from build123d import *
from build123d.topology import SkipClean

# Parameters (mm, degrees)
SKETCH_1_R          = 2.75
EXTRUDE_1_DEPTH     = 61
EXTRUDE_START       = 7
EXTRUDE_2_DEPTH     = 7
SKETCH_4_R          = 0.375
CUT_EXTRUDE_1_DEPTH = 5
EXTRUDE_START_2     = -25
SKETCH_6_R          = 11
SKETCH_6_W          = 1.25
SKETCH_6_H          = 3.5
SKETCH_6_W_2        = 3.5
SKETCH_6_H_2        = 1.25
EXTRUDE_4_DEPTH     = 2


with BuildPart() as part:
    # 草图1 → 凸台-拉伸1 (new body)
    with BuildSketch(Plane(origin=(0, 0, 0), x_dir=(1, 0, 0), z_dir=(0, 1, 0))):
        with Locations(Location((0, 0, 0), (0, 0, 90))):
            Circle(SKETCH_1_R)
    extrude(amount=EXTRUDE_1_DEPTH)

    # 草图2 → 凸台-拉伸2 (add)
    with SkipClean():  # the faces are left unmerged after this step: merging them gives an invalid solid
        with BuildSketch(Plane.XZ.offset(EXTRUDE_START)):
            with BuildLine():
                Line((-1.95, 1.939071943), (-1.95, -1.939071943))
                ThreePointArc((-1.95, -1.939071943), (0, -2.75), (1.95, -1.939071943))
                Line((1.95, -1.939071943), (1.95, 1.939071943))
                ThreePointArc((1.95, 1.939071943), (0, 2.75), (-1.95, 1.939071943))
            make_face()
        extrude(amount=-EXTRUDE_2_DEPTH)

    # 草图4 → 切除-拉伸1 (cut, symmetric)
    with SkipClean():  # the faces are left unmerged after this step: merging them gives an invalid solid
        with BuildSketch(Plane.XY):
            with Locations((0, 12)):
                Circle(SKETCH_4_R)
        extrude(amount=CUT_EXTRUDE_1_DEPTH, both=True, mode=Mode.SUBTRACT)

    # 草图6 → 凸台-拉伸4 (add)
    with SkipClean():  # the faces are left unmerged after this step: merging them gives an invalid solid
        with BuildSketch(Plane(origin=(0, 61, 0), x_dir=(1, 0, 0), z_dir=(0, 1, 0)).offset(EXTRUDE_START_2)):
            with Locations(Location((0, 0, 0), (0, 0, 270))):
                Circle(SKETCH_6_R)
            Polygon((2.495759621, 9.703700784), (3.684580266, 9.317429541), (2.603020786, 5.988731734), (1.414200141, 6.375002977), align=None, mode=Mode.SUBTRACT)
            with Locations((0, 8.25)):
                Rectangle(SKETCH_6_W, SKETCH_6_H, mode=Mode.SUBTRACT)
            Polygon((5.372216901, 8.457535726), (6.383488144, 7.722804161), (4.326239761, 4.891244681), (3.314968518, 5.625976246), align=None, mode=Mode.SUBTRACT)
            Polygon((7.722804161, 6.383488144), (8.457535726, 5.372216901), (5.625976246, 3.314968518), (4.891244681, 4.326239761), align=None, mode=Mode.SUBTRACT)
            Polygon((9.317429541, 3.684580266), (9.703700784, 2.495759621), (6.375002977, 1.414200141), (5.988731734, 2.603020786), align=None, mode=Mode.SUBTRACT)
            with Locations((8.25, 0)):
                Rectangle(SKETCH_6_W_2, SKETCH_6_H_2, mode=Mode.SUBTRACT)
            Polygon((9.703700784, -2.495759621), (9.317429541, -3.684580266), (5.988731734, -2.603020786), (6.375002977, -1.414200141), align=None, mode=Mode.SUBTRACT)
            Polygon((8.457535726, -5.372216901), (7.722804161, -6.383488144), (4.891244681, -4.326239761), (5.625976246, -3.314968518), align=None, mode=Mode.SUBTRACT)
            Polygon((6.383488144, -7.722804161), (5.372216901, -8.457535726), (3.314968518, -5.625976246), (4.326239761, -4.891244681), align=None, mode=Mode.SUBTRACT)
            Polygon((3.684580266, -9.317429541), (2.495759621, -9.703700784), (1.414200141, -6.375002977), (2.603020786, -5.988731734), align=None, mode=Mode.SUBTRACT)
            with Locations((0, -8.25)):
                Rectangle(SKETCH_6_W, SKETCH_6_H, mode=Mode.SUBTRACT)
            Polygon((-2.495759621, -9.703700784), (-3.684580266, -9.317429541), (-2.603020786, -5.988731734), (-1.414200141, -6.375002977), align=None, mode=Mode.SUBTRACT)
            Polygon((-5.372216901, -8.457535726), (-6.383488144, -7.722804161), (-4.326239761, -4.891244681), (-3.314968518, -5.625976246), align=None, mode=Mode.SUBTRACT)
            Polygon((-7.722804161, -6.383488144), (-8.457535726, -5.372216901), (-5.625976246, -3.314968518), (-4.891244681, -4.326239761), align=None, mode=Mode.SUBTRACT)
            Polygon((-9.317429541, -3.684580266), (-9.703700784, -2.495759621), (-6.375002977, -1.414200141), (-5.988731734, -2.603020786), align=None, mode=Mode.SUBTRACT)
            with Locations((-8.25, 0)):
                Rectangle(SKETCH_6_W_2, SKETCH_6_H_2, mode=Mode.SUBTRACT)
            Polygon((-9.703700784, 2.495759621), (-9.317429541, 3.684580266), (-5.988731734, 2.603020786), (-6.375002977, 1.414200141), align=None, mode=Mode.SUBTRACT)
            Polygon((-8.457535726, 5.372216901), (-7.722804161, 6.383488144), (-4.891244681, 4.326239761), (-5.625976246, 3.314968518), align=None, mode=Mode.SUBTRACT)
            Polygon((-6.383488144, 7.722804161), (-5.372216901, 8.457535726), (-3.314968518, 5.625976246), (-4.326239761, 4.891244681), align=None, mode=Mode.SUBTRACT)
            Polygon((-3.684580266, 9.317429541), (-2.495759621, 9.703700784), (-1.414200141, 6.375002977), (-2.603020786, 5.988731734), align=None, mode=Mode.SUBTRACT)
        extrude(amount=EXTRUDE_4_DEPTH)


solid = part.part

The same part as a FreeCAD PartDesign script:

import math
import FreeCAD as App
import Part
import Sketcher
Q = App.Units.Quantity

doc = App.newDocument("Part")
params = doc.addObject("Spreadsheet::Sheet", "Params")
for row, (alias, value) in enumerate([
    ("sketch1_diameter", "5.5 mm"),
    ("pad1_length", "61 mm"),
    ("sketch2_radius", "2.75 mm"),
    ("pad2_length", "7 mm"),
    ("sketch3_diameter", "0.75 mm"),
    ("pocket1_length", "10 mm"),
    ("sketch4_diameter", "22 mm"),
    ("sketch4_width", "3.5 mm"),
    ("sketch4_length", "3.5 mm"),
    ("sketch4_width2", "1.25 mm"),
    ("sketch4_length2", "1.25 mm"),
    ("pad3_length", "2 mm"),
], start=1):
    params.set(f"A{row}", alias)
    params.set(f"B{row}", "=" + value)
    params.setAlias(f"B{row}", alias)

body = doc.addObject("PartDesign::Body", "Body")

# Sketch on XZ plane
sketch1 = body.newObject("Sketcher::SketchObject", "Sketch")
sketch1.AttachmentSupport = (doc.getObject("XZ_Plane"), [""])
sketch1.MapMode = "FlatFace"
sketch1.addGeometry(Part.Circle(App.Vector(0, 0, 0), App.Vector(0, 0, 1), 2.75), False)
sketch1.addConstraint(Sketcher.Constraint("Coincident", 0, 3, -1, 1))
sketch1.addConstraint(Sketcher.Constraint("Diameter", 0, 5.5))
sketch1.setExpression("Constraints[1]", "Params.sketch1_diameter")
pad1 = body.newObject("PartDesign::Pad", "Pad")
pad1.Profile = sketch1
pad1.setExpression("Length", "Params.pad1_length")
pad1.Reversed = True

# Sketch on XZ plane
sketch2 = body.newObject("Sketcher::SketchObject", "Sketch001")
sketch2.AttachmentSupport = (doc.getObject("XZ_Plane"), [""])
sketch2.MapMode = "FlatFace"
sketch2.AttachmentOffset = App.Placement(App.Vector(0, 0, 7), App.Rotation())
sketch2.addGeometry(Part.LineSegment(App.Vector(-1.95, 1.939072, 0), App.Vector(-1.95, -1.939072, 0)), False)
sketch2.addGeometry(Part.ArcOfCircle(Part.Circle(App.Vector(0, 0, 0), App.Vector(0, 0, 1), 2.75), math.radians(-135.160997), math.radians(-44.839003)), False)
sketch2.addGeometry(Part.LineSegment(App.Vector(1.95, -1.939072, 0), App.Vector(1.95, 1.939072, 0)), False)
sketch2.addGeometry(Part.ArcOfCircle(Part.Circle(App.Vector(0, 0, 0), App.Vector(0, 0, 1), 2.75), math.radians(44.839003), math.radians(135.160997)), False)
sketch2.addConstraint(Sketcher.Constraint("Coincident", 0, 2, 1, 1))
sketch2.addConstraint(Sketcher.Constraint("Coincident", 1, 2, 2, 1))
sketch2.addConstraint(Sketcher.Constraint("Coincident", 2, 2, 3, 1))
sketch2.addConstraint(Sketcher.Constraint("Coincident", 3, 2, 0, 1))
sketch2.addConstraint(Sketcher.Constraint("Vertical", 0))
sketch2.addConstraint(Sketcher.Constraint("Vertical", 2))
sketch2.addConstraint(Sketcher.Constraint("Coincident", 1, 3, -1, 1))
sketch2.addConstraint(Sketcher.Constraint("Coincident", 3, 3, -1, 1))
sketch2.addConstraint(Sketcher.Constraint("Equal", 1, 3))
sketch2.addConstraint(Sketcher.Constraint("Horizontal", 0, 2, 1, 2))
sketch2.addConstraint(Sketcher.Constraint("Radius", 1, 2.75))
sketch2.addConstraint(Sketcher.Constraint("DistanceX", 0, 2, 1, 2, 3.9))
sketch2.setExpression("Constraints[10]", "Params.sketch2_radius")
pad2 = body.newObject("PartDesign::Pad", "Pad001")
pad2.Profile = sketch2
pad2.setExpression("Length", "Params.pad2_length")
pad2.Reversed = True

# Sketch on XY plane
sketch3 = body.newObject("Sketcher::SketchObject", "Sketch002")
sketch3.AttachmentSupport = (doc.getObject("XY_Plane"), [""])
sketch3.MapMode = "FlatFace"
sketch3.addGeometry(Part.Circle(App.Vector(0, 12, 0), App.Vector(0, 0, 1), 0.375), False)
sketch3.addConstraint(Sketcher.Constraint("PointOnObject", 0, 3, -2))
sketch3.addConstraint(Sketcher.Constraint("Diameter", 0, 0.75))
sketch3.addConstraint(Sketcher.Constraint("DistanceY", -1, 1, 0, 3, 12.0))
sketch3.setExpression("Constraints[1]", "Params.sketch3_diameter")
pocket1 = body.newObject("PartDesign::Pocket", "Pocket")
pocket1.Profile = sketch3
pocket1.setExpression("Length", "Params.pocket1_length")
pocket1.Midplane = True

# Sketch on XZ plane
sketch4 = body.newObject("Sketcher::SketchObject", "Sketch003")
sketch4.AttachmentSupport = (doc.getObject("XZ_Plane"), [""])
sketch4.MapMode = "FlatFace"
sketch4.AttachmentOffset = App.Placement(App.Vector(0, 0, -36), App.Rotation())
sketch4.addGeometry(Part.Circle(App.Vector(0, 0, 0), App.Vector(0, 0, 1), 11), False)
sketch4.addGeometry(Part.LineSegment(App.Vector(-6.375003, -1.4142, 0), App.Vector(-9.703701, -2.49576, 0)), False)
sketch4.addGeometry(Part.LineSegment(App.Vector(-9.703701, -2.49576, 0), App.Vector(-9.31743, -3.68458, 0)), False)
sketch4.addGeometry(Part.LineSegment(App.Vector(-9.31743, -3.68458, 0), App.Vector(-5.988732, -2.603021, 0)), False)
sketch4.addGeometry(Part.LineSegment(App.Vector(-5.988732, -2.603021, 0), App.Vector(-6.375003, -1.4142, 0)), False)
sketch4.addGeometry(Part.LineSegment(App.Vector(-5.625976, -3.314969, 0), App.Vector(-8.457536, -5.372217, 0)), False)
sketch4.addGeometry(Part.LineSegment(App.Vector(-8.457536, -5.372217, 0), App.Vector(-7.722804, -6.383488, 0)), False)
sketch4.addGeometry(Part.LineSegment(App.Vector(-7.722804, -6.383488, 0), App.Vector(-4.891245, -4.32624, 0)), False)
sketch4.addGeometry(Part.LineSegment(App.Vector(-4.891245, -4.32624, 0), App.Vector(-5.625976, -3.314969, 0)), False)
sketch4.addGeometry(Part.LineSegment(App.Vector(-2.603021, -5.988732, 0), App.Vector(-3.68458, -9.31743, 0)), False)
sketch4.addGeometry(Part.LineSegment(App.Vector(-3.68458, -9.31743, 0), App.Vector(-2.49576, -9.703701, 0)), False)
sketch4.addGeometry(Part.LineSegment(App.Vector(-2.49576, -9.703701, 0), App.Vector(-1.4142, -6.375003, 0)), False)
sketch4.addGeometry(Part.LineSegment(App.Vector(-1.4142, -6.375003, 0), App.Vector(-2.603021, -5.988732, 0)), False)
sketch4.addGeometry(Part.LineSegment(App.Vector(-4.32624, -4.891245, 0), App.Vector(-6.383488, -7.722804, 0)), False)
sketch4.addGeometry(Part.LineSegment(App.Vector(-6.383488, -7.722804, 0), App.Vector(-5.372217, -8.457536, 0)), False)
sketch4.addGeometry(Part.LineSegment(App.Vector(-5.372217, -8.457536, 0), App.Vector(-3.314969, -5.625976, 0)), False)
sketch4.addGeometry(Part.LineSegment(App.Vector(-3.314969, -5.625976, 0), App.Vector(-4.32624, -4.891245, 0)), False)
sketch4.addGeometry(Part.LineSegment(App.Vector(0.625, -6.5, 0), App.Vector(-0.625, -6.5, 0)), False)
sketch4.addGeometry(Part.LineSegment(App.Vector(-0.625, -6.5, 0), App.Vector(-0.625, -10, 0)), False)
sketch4.addGeometry(Part.LineSegment(App.Vector(-0.625, -10, 0), App.Vector(0.625, -10, 0)), False)
sketch4.addGeometry(Part.LineSegment(App.Vector(0.625, -10, 0), App.Vector(0.625, -6.5, 0)), False)
sketch4.addGeometry(Part.LineSegment(App.Vector(-6.5, 0.625, 0), App.Vector(-10, 0.625, 0)), False)
sketch4.addGeometry(Part.LineSegment(App.Vector(-10, 0.625, 0), App.Vector(-10, -0.625, 0)), False)
sketch4.addGeometry(Part.LineSegment(App.Vector(-10, -0.625, 0), App.Vector(-6.5, -0.625, 0)), False)
sketch4.addGeometry(Part.LineSegment(App.Vector(-6.5, -0.625, 0), App.Vector(-6.5, 0.625, 0)), False)
sketch4.addGeometry(Part.LineSegment(App.Vector(-5.988732, 2.603021, 0), App.Vector(-9.31743, 3.68458, 0)), False)
sketch4.addGeometry(Part.LineSegment(App.Vector(-9.31743, 3.68458, 0), App.Vector(-9.703701, 2.49576, 0)), False)
sketch4.addGeometry(Part.LineSegment(App.Vector(-9.703701, 2.49576, 0), App.Vector(-6.375003, 1.4142, 0)), False)
sketch4.addGeometry(Part.LineSegment(App.Vector(-6.375003, 1.4142, 0), App.Vector(-5.988732, 2.603021, 0)), False)
sketch4.addGeometry(Part.LineSegment(App.Vector(-4.891245, 4.32624, 0), App.Vector(-7.722804, 6.383488, 0)), False)
sketch4.addGeometry(Part.LineSegment(App.Vector(-7.722804, 6.383488, 0), App.Vector(-8.457536, 5.372217, 0)), False)
sketch4.addGeometry(Part.LineSegment(App.Vector(-8.457536, 5.372217, 0), App.Vector(-5.625976, 3.314969, 0)), False)
sketch4.addGeometry(Part.LineSegment(App.Vector(-5.625976, 3.314969, 0), App.Vector(-4.891245, 4.32624, 0)), False)
sketch4.addGeometry(Part.LineSegment(App.Vector(-3.314969, 5.625976, 0), App.Vector(-5.372217, 8.457536, 0)), False)
sketch4.addGeometry(Part.LineSegment(App.Vector(-5.372217, 8.457536, 0), App.Vector(-6.383488, 7.722804, 0)), False)
sketch4.addGeometry(Part.LineSegment(App.Vector(-6.383488, 7.722804, 0), App.Vector(-4.32624, 4.891245, 0)), False)
sketch4.addGeometry(Part.LineSegment(App.Vector(-4.32624, 4.891245, 0), App.Vector(-3.314969, 5.625976, 0)), False)
sketch4.addGeometry(Part.LineSegment(App.Vector(-1.4142, 6.375003, 0), App.Vector(-2.49576, 9.703701, 0)), False)
sketch4.addGeometry(Part.LineSegment(App.Vector(-2.49576, 9.703701, 0), App.Vector(-3.68458, 9.31743, 0)), False)
sketch4.addGeometry(Part.LineSegment(App.Vector(-3.68458, 9.31743, 0), App.Vector(-2.603021, 5.988732, 0)), False)
sketch4.addGeometry(Part.LineSegment(App.Vector(-2.603021, 5.988732, 0), App.Vector(-1.4142, 6.375003, 0)), False)
sketch4.addGeometry(Part.LineSegment(App.Vector(1.4142, -6.375003, 0), App.Vector(2.49576, -9.703701, 0)), False)
sketch4.addGeometry(Part.LineSegment(App.Vector(2.49576, -9.703701, 0), App.Vector(3.68458, -9.31743, 0)), False)
sketch4.addGeometry(Part.LineSegment(App.Vector(3.68458, -9.31743, 0), App.Vector(2.603021, -5.988732, 0)), False)
sketch4.addGeometry(Part.LineSegment(App.Vector(2.603021, -5.988732, 0), App.Vector(1.4142, -6.375003, 0)), False)
sketch4.addGeometry(Part.LineSegment(App.Vector(3.314969, -5.625976, 0), App.Vector(5.372217, -8.457536, 0)), False)
sketch4.addGeometry(Part.LineSegment(App.Vector(5.372217, -8.457536, 0), App.Vector(6.383488, -7.722804, 0)), False)
sketch4.addGeometry(Part.LineSegment(App.Vector(6.383488, -7.722804, 0), App.Vector(4.32624, -4.891245, 0)), False)
sketch4.addGeometry(Part.LineSegment(App.Vector(4.32624, -4.891245, 0), App.Vector(3.314969, -5.625976, 0)), False)
sketch4.addGeometry(Part.LineSegment(App.Vector(4.891245, -4.32624, 0), App.Vector(7.722804, -6.383488, 0)), False)
sketch4.addGeometry(Part.LineSegment(App.Vector(7.722804, -6.383488, 0), App.Vector(8.457536, -5.372217, 0)), False)
sketch4.addGeometry(Part.LineSegment(App.Vector(8.457536, -5.372217, 0), App.Vector(5.625976, -3.314969, 0)), False)
sketch4.addGeometry(Part.LineSegment(App.Vector(5.625976, -3.314969, 0), App.Vector(4.891245, -4.32624, 0)), False)
sketch4.addGeometry(Part.LineSegment(App.Vector(5.988732, -2.603021, 0), App.Vector(9.31743, -3.68458, 0)), False)
sketch4.addGeometry(Part.LineSegment(App.Vector(9.31743, -3.68458, 0), App.Vector(9.703701, -2.49576, 0)), False)
sketch4.addGeometry(Part.LineSegment(App.Vector(9.703701, -2.49576, 0), App.Vector(6.375003, -1.4142, 0)), False)
sketch4.addGeometry(Part.LineSegment(App.Vector(6.375003, -1.4142, 0), App.Vector(5.988732, -2.603021, 0)), False)
sketch4.addGeometry(Part.LineSegment(App.Vector(10, 0.625, 0), App.Vector(6.5, 0.625, 0)), False)
sketch4.addGeometry(Part.LineSegment(App.Vector(6.5, 0.625, 0), App.Vector(6.5, -0.625, 0)), False)
sketch4.addGeometry(Part.LineSegment(App.Vector(6.5, -0.625, 0), App.Vector(10, -0.625, 0)), False)
sketch4.addGeometry(Part.LineSegment(App.Vector(10, -0.625, 0), App.Vector(10, 0.625, 0)), False)
sketch4.addGeometry(Part.LineSegment(App.Vector(0.625, 10, 0), App.Vector(-0.625, 10, 0)), False)
sketch4.addGeometry(Part.LineSegment(App.Vector(-0.625, 10, 0), App.Vector(-0.625, 6.5, 0)), False)
sketch4.addGeometry(Part.LineSegment(App.Vector(-0.625, 6.5, 0), App.Vector(0.625, 6.5, 0)), False)
sketch4.addGeometry(Part.LineSegment(App.Vector(0.625, 6.5, 0), App.Vector(0.625, 10, 0)), False)
sketch4.addGeometry(Part.LineSegment(App.Vector(4.32624, 4.891245, 0), App.Vector(6.383488, 7.722804, 0)), False)
sketch4.addGeometry(Part.LineSegment(App.Vector(6.383488, 7.722804, 0), App.Vector(5.372217, 8.457536, 0)), False)
sketch4.addGeometry(Part.LineSegment(App.Vector(5.372217, 8.457536, 0), App.Vector(3.314969, 5.625976, 0)), False)
sketch4.addGeometry(Part.LineSegment(App.Vector(3.314969, 5.625976, 0), App.Vector(4.32624, 4.891245, 0)), False)
sketch4.addGeometry(Part.LineSegment(App.Vector(2.603021, 5.988732, 0), App.Vector(3.68458, 9.31743, 0)), False)
sketch4.addGeometry(Part.LineSegment(App.Vector(3.68458, 9.31743, 0), App.Vector(2.49576, 9.703701, 0)), False)
sketch4.addGeometry(Part.LineSegment(App.Vector(2.49576, 9.703701, 0), App.Vector(1.4142, 6.375003, 0)), False)
sketch4.addGeometry(Part.LineSegment(App.Vector(1.4142, 6.375003, 0), App.Vector(2.603021, 5.988732, 0)), False)
sketch4.addGeometry(Part.LineSegment(App.Vector(5.625976, 3.314969, 0), App.Vector(8.457536, 5.372217, 0)), False)
sketch4.addGeometry(Part.LineSegment(App.Vector(8.457536, 5.372217, 0), App.Vector(7.722804, 6.383488, 0)), False)
sketch4.addGeometry(Part.LineSegment(App.Vector(7.722804, 6.383488, 0), App.Vector(4.891245, 4.32624, 0)), False)
sketch4.addGeometry(Part.LineSegment(App.Vector(4.891245, 4.32624, 0), App.Vector(5.625976, 3.314969, 0)), False)
sketch4.addGeometry(Part.LineSegment(App.Vector(6.375003, 1.4142, 0), App.Vector(9.703701, 2.49576, 0)), False)
sketch4.addGeometry(Part.LineSegment(App.Vector(9.703701, 2.49576, 0), App.Vector(9.31743, 3.68458, 0)), False)
sketch4.addGeometry(Part.LineSegment(App.Vector(9.31743, 3.68458, 0), App.Vector(5.988732, 2.603021, 0)), False)
sketch4.addGeometry(Part.LineSegment(App.Vector(5.988732, 2.603021, 0), App.Vector(6.375003, 1.4142, 0)), False)
sketch4.addConstraint(Sketcher.Constraint("Coincident", 1, 2, 2, 1))
sketch4.addConstraint(Sketcher.Constraint("Coincident", 2, 2, 3, 1))
sketch4.addConstraint(Sketcher.Constraint("Coincident", 3, 2, 4, 1))
sketch4.addConstraint(Sketcher.Constraint("Coincident", 4, 2, 1, 1))
sketch4.addConstraint(Sketcher.Constraint("Coincident", 5, 2, 6, 1))
sketch4.addConstraint(Sketcher.Constraint("Coincident", 6, 2, 7, 1))
sketch4.addConstraint(Sketcher.Constraint("Coincident", 7, 2, 8, 1))
sketch4.addConstraint(Sketcher.Constraint("Coincident", 8, 2, 5, 1))
sketch4.addConstraint(Sketcher.Constraint("Coincident", 9, 2, 10, 1))
sketch4.addConstraint(Sketcher.Constraint("Coincident", 10, 2, 11, 1))
sketch4.addConstraint(Sketcher.Constraint("Coincident", 11, 2, 12, 1))
sketch4.addConstraint(Sketcher.Constraint("Coincident", 12, 2, 9, 1))
sketch4.addConstraint(Sketcher.Constraint("Coincident", 13, 2, 14, 1))
sketch4.addConstraint(Sketcher.Constraint("Coincident", 14, 2, 15, 1))
sketch4.addConstraint(Sketcher.Constraint("Coincident", 15, 2, 16, 1))
sketch4.addConstraint(Sketcher.Constraint("Coincident", 16, 2, 13, 1))
sketch4.addConstraint(Sketcher.Constraint("Coincident", 17, 2, 18, 1))
sketch4.addConstraint(Sketcher.Constraint("Coincident", 18, 2, 19, 1))
sketch4.addConstraint(Sketcher.Constraint("Coincident", 19, 2, 20, 1))
sketch4.addConstraint(Sketcher.Constraint("Coincident", 20, 2, 17, 1))
sketch4.addConstraint(Sketcher.Constraint("Coincident", 21, 2, 22, 1))
sketch4.addConstraint(Sketcher.Constraint("Coincident", 22, 2, 23, 1))
sketch4.addConstraint(Sketcher.Constraint("Coincident", 23, 2, 24, 1))
sketch4.addConstraint(Sketcher.Constraint("Coincident", 24, 2, 21, 1))
sketch4.addConstraint(Sketcher.Constraint("Coincident", 25, 2, 26, 1))
sketch4.addConstraint(Sketcher.Constraint("Coincident", 26, 2, 27, 1))
sketch4.addConstraint(Sketcher.Constraint("Coincident", 27, 2, 28, 1))
sketch4.addConstraint(Sketcher.Constraint("Coincident", 28, 2, 25, 1))
sketch4.addConstraint(Sketcher.Constraint("Coincident", 29, 2, 30, 1))
sketch4.addConstraint(Sketcher.Constraint("Coincident", 30, 2, 31, 1))
sketch4.addConstraint(Sketcher.Constraint("Coincident", 31, 2, 32, 1))
sketch4.addConstraint(Sketcher.Constraint("Coincident", 32, 2, 29, 1))
sketch4.addConstraint(Sketcher.Constraint("Coincident", 33, 2, 34, 1))
sketch4.addConstraint(Sketcher.Constraint("Coincident", 34, 2, 35, 1))
sketch4.addConstraint(Sketcher.Constraint("Coincident", 35, 2, 36, 1))
sketch4.addConstraint(Sketcher.Constraint("Coincident", 36, 2, 33, 1))
sketch4.addConstraint(Sketcher.Constraint("Coincident", 37, 2, 38, 1))
sketch4.addConstraint(Sketcher.Constraint("Coincident", 38, 2, 39, 1))
sketch4.addConstraint(Sketcher.Constraint("Coincident", 39, 2, 40, 1))
sketch4.addConstraint(Sketcher.Constraint("Coincident", 40, 2, 37, 1))
sketch4.addConstraint(Sketcher.Constraint("Coincident", 41, 2, 42, 1))
sketch4.addConstraint(Sketcher.Constraint("Coincident", 42, 2, 43, 1))
sketch4.addConstraint(Sketcher.Constraint("Coincident", 43, 2, 44, 1))
sketch4.addConstraint(Sketcher.Constraint("Coincident", 44, 2, 41, 1))
sketch4.addConstraint(Sketcher.Constraint("Coincident", 45, 2, 46, 1))
sketch4.addConstraint(Sketcher.Constraint("Coincident", 46, 2, 47, 1))
sketch4.addConstraint(Sketcher.Constraint("Coincident", 47, 2, 48, 1))
sketch4.addConstraint(Sketcher.Constraint("Coincident", 48, 2, 45, 1))
sketch4.addConstraint(Sketcher.Constraint("Coincident", 49, 2, 50, 1))
sketch4.addConstraint(Sketcher.Constraint("Coincident", 50, 2, 51, 1))
sketch4.addConstraint(Sketcher.Constraint("Coincident", 51, 2, 52, 1))
sketch4.addConstraint(Sketcher.Constraint("Coincident", 52, 2, 49, 1))
sketch4.addConstraint(Sketcher.Constraint("Coincident", 53, 2, 54, 1))
sketch4.addConstraint(Sketcher.Constraint("Coincident", 54, 2, 55, 1))
sketch4.addConstraint(Sketcher.Constraint("Coincident", 55, 2, 56, 1))
sketch4.addConstraint(Sketcher.Constraint("Coincident", 56, 2, 53, 1))
sketch4.addConstraint(Sketcher.Constraint("Coincident", 57, 2, 58, 1))
sketch4.addConstraint(Sketcher.Constraint("Coincident", 58, 2, 59, 1))
sketch4.addConstraint(Sketcher.Constraint("Coincident", 59, 2, 60, 1))
sketch4.addConstraint(Sketcher.Constraint("Coincident", 60, 2, 57, 1))
sketch4.addConstraint(Sketcher.Constraint("Coincident", 61, 2, 62, 1))
sketch4.addConstraint(Sketcher.Constraint("Coincident", 62, 2, 63, 1))
sketch4.addConstraint(Sketcher.Constraint("Coincident", 63, 2, 64, 1))
sketch4.addConstraint(Sketcher.Constraint("Coincident", 64, 2, 61, 1))
sketch4.addConstraint(Sketcher.Constraint("Coincident", 65, 2, 66, 1))
sketch4.addConstraint(Sketcher.Constraint("Coincident", 66, 2, 67, 1))
sketch4.addConstraint(Sketcher.Constraint("Coincident", 67, 2, 68, 1))
sketch4.addConstraint(Sketcher.Constraint("Coincident", 68, 2, 65, 1))
sketch4.addConstraint(Sketcher.Constraint("Coincident", 69, 2, 70, 1))
sketch4.addConstraint(Sketcher.Constraint("Coincident", 70, 2, 71, 1))
sketch4.addConstraint(Sketcher.Constraint("Coincident", 71, 2, 72, 1))
sketch4.addConstraint(Sketcher.Constraint("Coincident", 72, 2, 69, 1))
sketch4.addConstraint(Sketcher.Constraint("Coincident", 73, 2, 74, 1))
sketch4.addConstraint(Sketcher.Constraint("Coincident", 74, 2, 75, 1))
sketch4.addConstraint(Sketcher.Constraint("Coincident", 75, 2, 76, 1))
sketch4.addConstraint(Sketcher.Constraint("Coincident", 76, 2, 73, 1))
sketch4.addConstraint(Sketcher.Constraint("Coincident", 77, 2, 78, 1))
sketch4.addConstraint(Sketcher.Constraint("Coincident", 78, 2, 79, 1))
sketch4.addConstraint(Sketcher.Constraint("Coincident", 79, 2, 80, 1))
sketch4.addConstraint(Sketcher.Constraint("Coincident", 80, 2, 77, 1))
sketch4.addConstraint(Sketcher.Constraint("Horizontal", 17))
sketch4.addConstraint(Sketcher.Constraint("Vertical", 18))
sketch4.addConstraint(Sketcher.Constraint("Horizontal", 19))
sketch4.addConstraint(Sketcher.Constraint("Vertical", 20))
sketch4.addConstraint(Sketcher.Constraint("Horizontal", 21))
sketch4.addConstraint(Sketcher.Constraint("Vertical", 22))
sketch4.addConstraint(Sketcher.Constraint("Horizontal", 23))
sketch4.addConstraint(Sketcher.Constraint("Vertical", 24))
sketch4.addConstraint(Sketcher.Constraint("Horizontal", 57))
sketch4.addConstraint(Sketcher.Constraint("Vertical", 58))
sketch4.addConstraint(Sketcher.Constraint("Horizontal", 59))
sketch4.addConstraint(Sketcher.Constraint("Vertical", 60))
sketch4.addConstraint(Sketcher.Constraint("Horizontal", 61))
sketch4.addConstraint(Sketcher.Constraint("Vertical", 62))
sketch4.addConstraint(Sketcher.Constraint("Horizontal", 63))
sketch4.addConstraint(Sketcher.Constraint("Vertical", 64))
sketch4.addConstraint(Sketcher.Constraint("Coincident", 0, 3, -1, 1))
sketch4.addConstraint(Sketcher.Constraint("Symmetric", 37, 2, 41, 2, -1, 1))
sketch4.addConstraint(Sketcher.Constraint("Symmetric", 38, 2, 42, 2, -1, 1))
sketch4.addConstraint(Sketcher.Constraint("Symmetric", 39, 2, 43, 2, -1, 1))
sketch4.addConstraint(Sketcher.Constraint("Symmetric", 40, 2, 44, 2, -1, 1))
sketch4.addConstraint(Sketcher.Constraint("Symmetric", 33, 2, 45, 2, -1, 1))
sketch4.addConstraint(Sketcher.Constraint("Symmetric", 34, 2, 46, 2, -1, 1))
sketch4.addConstraint(Sketcher.Constraint("Symmetric", 35, 2, 47, 2, -1, 1))
sketch4.addConstraint(Sketcher.Constraint("Symmetric", 36, 2, 48, 2, -1, 1))
sketch4.addConstraint(Sketcher.Constraint("Symmetric", 29, 2, 49, 2, -1, 1))
sketch4.addConstraint(Sketcher.Constraint("Symmetric", 30, 2, 50, 2, -1, 1))
sketch4.addConstraint(Sketcher.Constraint("Symmetric", 31, 2, 51, 2, -1, 1))
sketch4.addConstraint(Sketcher.Constraint("Symmetric", 32, 2, 52, 2, -1, 1))
sketch4.addConstraint(Sketcher.Constraint("Symmetric", 25, 2, 53, 2, -1, 1))
sketch4.addConstraint(Sketcher.Constraint("Symmetric", 26, 2, 54, 2, -1, 1))
sketch4.addConstraint(Sketcher.Constraint("Symmetric", 27, 2, 55, 2, -1, 1))
sketch4.addConstraint(Sketcher.Constraint("Symmetric", 28, 2, 56, 2, -1, 1))
sketch4.addConstraint(Sketcher.Constraint("Symmetric", 23, 2, 57, 2, -1, 1))
sketch4.addConstraint(Sketcher.Constraint("Symmetric", 21, 2, 59, 2, -1, 1))
sketch4.addConstraint(Sketcher.Constraint("Symmetric", 19, 2, 61, 2, -1, 1))
sketch4.addConstraint(Sketcher.Constraint("Symmetric", 17, 2, 63, 2, -1, 1))
sketch4.addConstraint(Sketcher.Constraint("Symmetric", 13, 2, 65, 2, -1, 1))
sketch4.addConstraint(Sketcher.Constraint("Symmetric", 14, 2, 66, 2, -1, 1))
sketch4.addConstraint(Sketcher.Constraint("Symmetric", 15, 2, 67, 2, -1, 1))
sketch4.addConstraint(Sketcher.Constraint("Symmetric", 16, 2, 68, 2, -1, 1))
sketch4.addConstraint(Sketcher.Constraint("Symmetric", 9, 2, 69, 2, -1, 1))
sketch4.addConstraint(Sketcher.Constraint("Symmetric", 10, 2, 70, 2, -1, 1))
sketch4.addConstraint(Sketcher.Constraint("Symmetric", 11, 2, 71, 2, -1, 1))
sketch4.addConstraint(Sketcher.Constraint("Symmetric", 12, 2, 72, 2, -1, 1))
sketch4.addConstraint(Sketcher.Constraint("Symmetric", 5, 2, 73, 2, -1, 1))
sketch4.addConstraint(Sketcher.Constraint("Symmetric", 6, 2, 74, 2, -1, 1))
sketch4.addConstraint(Sketcher.Constraint("Symmetric", 7, 2, 75, 2, -1, 1))
sketch4.addConstraint(Sketcher.Constraint("Symmetric", 8, 2, 76, 2, -1, 1))
sketch4.addConstraint(Sketcher.Constraint("Symmetric", 1, 2, 77, 2, -1, 1))
sketch4.addConstraint(Sketcher.Constraint("Symmetric", 2, 2, 78, 2, -1, 1))
sketch4.addConstraint(Sketcher.Constraint("Symmetric", 3, 2, 79, 2, -1, 1))
sketch4.addConstraint(Sketcher.Constraint("Symmetric", 4, 2, 80, 2, -1, 1))
sketch4.addConstraint(Sketcher.Constraint("Symmetric", 10, 2, 41, 2, -2))
sketch4.addConstraint(Sketcher.Constraint("Symmetric", 9, 2, 42, 2, -2))
sketch4.addConstraint(Sketcher.Constraint("Symmetric", 12, 2, 43, 2, -2))
sketch4.addConstraint(Sketcher.Constraint("Symmetric", 11, 2, 44, 2, -2))
sketch4.addConstraint(Sketcher.Constraint("Symmetric", 14, 2, 45, 2, -2))
sketch4.addConstraint(Sketcher.Constraint("Symmetric", 13, 2, 46, 2, -2))
sketch4.addConstraint(Sketcher.Constraint("Symmetric", 16, 2, 47, 2, -2))
sketch4.addConstraint(Sketcher.Constraint("Symmetric", 15, 2, 48, 2, -2))
sketch4.addConstraint(Sketcher.Constraint("Symmetric", 6, 2, 49, 2, -2))
sketch4.addConstraint(Sketcher.Constraint("Symmetric", 5, 2, 50, 2, -2))
sketch4.addConstraint(Sketcher.Constraint("Symmetric", 8, 2, 51, 2, -2))
sketch4.addConstraint(Sketcher.Constraint("Symmetric", 7, 2, 52, 2, -2))
sketch4.addConstraint(Sketcher.Constraint("Symmetric", 2, 2, 53, 2, -2))
sketch4.addConstraint(Sketcher.Constraint("Symmetric", 1, 2, 54, 2, -2))
sketch4.addConstraint(Sketcher.Constraint("Symmetric", 4, 2, 55, 2, -2))
sketch4.addConstraint(Sketcher.Constraint("Symmetric", 3, 2, 56, 2, -2))
sketch4.addConstraint(Sketcher.Constraint("Perpendicular", 1, 2))
sketch4.addConstraint(Sketcher.Constraint("Perpendicular", 2, 3))
sketch4.addConstraint(Sketcher.Constraint("Perpendicular", 3, 4))
sketch4.addConstraint(Sketcher.Constraint("Perpendicular", 5, 6))
sketch4.addConstraint(Sketcher.Constraint("Perpendicular", 6, 7))
sketch4.addConstraint(Sketcher.Constraint("Perpendicular", 7, 8))
sketch4.addConstraint(Sketcher.Constraint("Perpendicular", 9, 10))
sketch4.addConstraint(Sketcher.Constraint("Perpendicular", 10, 11))
sketch4.addConstraint(Sketcher.Constraint("Perpendicular", 11, 12))
sketch4.addConstraint(Sketcher.Constraint("Perpendicular", 13, 14))
sketch4.addConstraint(Sketcher.Constraint("Perpendicular", 14, 15))
sketch4.addConstraint(Sketcher.Constraint("Perpendicular", 15, 16))
sketch4.addConstraint(Sketcher.Constraint("Parallel", 12, 25))
sketch4.addConstraint(Sketcher.Constraint("Parallel", 16, 29))
sketch4.addConstraint(Sketcher.Constraint("Horizontal", 24, 2, 57, 2))
sketch4.addConstraint(Sketcher.Constraint("Vertical", 18, 2, 61, 2))
sketch4.addConstraint(Sketcher.Constraint("Equal", 59, 18))
sketch4.addConstraint(Sketcher.Constraint("Equal", 63, 22))
sketch4.addConstraint(Sketcher.Constraint("Equal", 3, 5))
sketch4.addConstraint(Sketcher.Constraint("Equal", 4, 6))
sketch4.addConstraint(Sketcher.Constraint("Equal", 7, 9))
sketch4.addConstraint(Sketcher.Constraint("Equal", 8, 10))
sketch4.addConstraint(Sketcher.Constraint("Equal", 11, 13))
sketch4.addConstraint(Sketcher.Constraint("Equal", 12, 14))
sketch4.addConstraint(Sketcher.Constraint("Diameter", 0, 22.0))
sketch4.addConstraint(Sketcher.Constraint("Angle", 1, Q("-162 deg")))
sketch4.addConstraint(Sketcher.Constraint("Angle", 5, Q("-144 deg")))
sketch4.addConstraint(Sketcher.Constraint("DistanceX", 21, 2, 21, 1, 3.5))
sketch4.addConstraint(Sketcher.Constraint("DistanceY", 18, 2, -1, 1, 10.0))
sketch4.addConstraint(Sketcher.Constraint("DistanceX", 21, 2, -1, 1, 10.0))
sketch4.addConstraint(Sketcher.Constraint("Distance", 1, 3.5))
sketch4.addConstraint(Sketcher.Constraint("DistanceX", 17, 2, 17, 1, 1.25))
sketch4.addConstraint(Sketcher.Constraint("Distance", 2, 1.25))
sketch4.addConstraint(Sketcher.Constraint("DistanceX", 1, 2, -1, 1, 9.703701))
sketch4.addConstraint(Sketcher.Constraint("DistanceY", 4, 2, -1, 1, 1.4142))
sketch4.addConstraint(Sketcher.Constraint("DistanceY", 10, 2, -1, 1, 9.703701))
sketch4.addConstraint(Sketcher.Constraint("DistanceX", 11, 2, -1, 1, 1.4142))
sketch4.addConstraint(Sketcher.Constraint("DistanceY", 6, 2, -1, 1, 6.383488))
sketch4.addConstraint(Sketcher.Constraint("DistanceX", 13, 2, -1, 1, 6.383488))
sketch4.addConstraint(Sketcher.Constraint("DistanceX", 5, 2, -1, 1, 8.457536))
sketch4.addConstraint(Sketcher.Constraint("DistanceY", 13, 2, -1, 1, 7.722804))
sketch4.setExpression("Constraints[173]", "Params.sketch4_diameter")
sketch4.setExpression("Constraints[176]", "Params.sketch4_width")
sketch4.setExpression("Constraints[179]", "Params.sketch4_length")
sketch4.setExpression("Constraints[180]", "Params.sketch4_width2")
sketch4.setExpression("Constraints[181]", "Params.sketch4_length2")
pad3 = body.newObject("PartDesign::Pad", "Pad002")
pad3.Profile = sketch4
pad3.setExpression("Length", "Params.pad3_length")
pad3.Reversed = True

doc.recompute()
